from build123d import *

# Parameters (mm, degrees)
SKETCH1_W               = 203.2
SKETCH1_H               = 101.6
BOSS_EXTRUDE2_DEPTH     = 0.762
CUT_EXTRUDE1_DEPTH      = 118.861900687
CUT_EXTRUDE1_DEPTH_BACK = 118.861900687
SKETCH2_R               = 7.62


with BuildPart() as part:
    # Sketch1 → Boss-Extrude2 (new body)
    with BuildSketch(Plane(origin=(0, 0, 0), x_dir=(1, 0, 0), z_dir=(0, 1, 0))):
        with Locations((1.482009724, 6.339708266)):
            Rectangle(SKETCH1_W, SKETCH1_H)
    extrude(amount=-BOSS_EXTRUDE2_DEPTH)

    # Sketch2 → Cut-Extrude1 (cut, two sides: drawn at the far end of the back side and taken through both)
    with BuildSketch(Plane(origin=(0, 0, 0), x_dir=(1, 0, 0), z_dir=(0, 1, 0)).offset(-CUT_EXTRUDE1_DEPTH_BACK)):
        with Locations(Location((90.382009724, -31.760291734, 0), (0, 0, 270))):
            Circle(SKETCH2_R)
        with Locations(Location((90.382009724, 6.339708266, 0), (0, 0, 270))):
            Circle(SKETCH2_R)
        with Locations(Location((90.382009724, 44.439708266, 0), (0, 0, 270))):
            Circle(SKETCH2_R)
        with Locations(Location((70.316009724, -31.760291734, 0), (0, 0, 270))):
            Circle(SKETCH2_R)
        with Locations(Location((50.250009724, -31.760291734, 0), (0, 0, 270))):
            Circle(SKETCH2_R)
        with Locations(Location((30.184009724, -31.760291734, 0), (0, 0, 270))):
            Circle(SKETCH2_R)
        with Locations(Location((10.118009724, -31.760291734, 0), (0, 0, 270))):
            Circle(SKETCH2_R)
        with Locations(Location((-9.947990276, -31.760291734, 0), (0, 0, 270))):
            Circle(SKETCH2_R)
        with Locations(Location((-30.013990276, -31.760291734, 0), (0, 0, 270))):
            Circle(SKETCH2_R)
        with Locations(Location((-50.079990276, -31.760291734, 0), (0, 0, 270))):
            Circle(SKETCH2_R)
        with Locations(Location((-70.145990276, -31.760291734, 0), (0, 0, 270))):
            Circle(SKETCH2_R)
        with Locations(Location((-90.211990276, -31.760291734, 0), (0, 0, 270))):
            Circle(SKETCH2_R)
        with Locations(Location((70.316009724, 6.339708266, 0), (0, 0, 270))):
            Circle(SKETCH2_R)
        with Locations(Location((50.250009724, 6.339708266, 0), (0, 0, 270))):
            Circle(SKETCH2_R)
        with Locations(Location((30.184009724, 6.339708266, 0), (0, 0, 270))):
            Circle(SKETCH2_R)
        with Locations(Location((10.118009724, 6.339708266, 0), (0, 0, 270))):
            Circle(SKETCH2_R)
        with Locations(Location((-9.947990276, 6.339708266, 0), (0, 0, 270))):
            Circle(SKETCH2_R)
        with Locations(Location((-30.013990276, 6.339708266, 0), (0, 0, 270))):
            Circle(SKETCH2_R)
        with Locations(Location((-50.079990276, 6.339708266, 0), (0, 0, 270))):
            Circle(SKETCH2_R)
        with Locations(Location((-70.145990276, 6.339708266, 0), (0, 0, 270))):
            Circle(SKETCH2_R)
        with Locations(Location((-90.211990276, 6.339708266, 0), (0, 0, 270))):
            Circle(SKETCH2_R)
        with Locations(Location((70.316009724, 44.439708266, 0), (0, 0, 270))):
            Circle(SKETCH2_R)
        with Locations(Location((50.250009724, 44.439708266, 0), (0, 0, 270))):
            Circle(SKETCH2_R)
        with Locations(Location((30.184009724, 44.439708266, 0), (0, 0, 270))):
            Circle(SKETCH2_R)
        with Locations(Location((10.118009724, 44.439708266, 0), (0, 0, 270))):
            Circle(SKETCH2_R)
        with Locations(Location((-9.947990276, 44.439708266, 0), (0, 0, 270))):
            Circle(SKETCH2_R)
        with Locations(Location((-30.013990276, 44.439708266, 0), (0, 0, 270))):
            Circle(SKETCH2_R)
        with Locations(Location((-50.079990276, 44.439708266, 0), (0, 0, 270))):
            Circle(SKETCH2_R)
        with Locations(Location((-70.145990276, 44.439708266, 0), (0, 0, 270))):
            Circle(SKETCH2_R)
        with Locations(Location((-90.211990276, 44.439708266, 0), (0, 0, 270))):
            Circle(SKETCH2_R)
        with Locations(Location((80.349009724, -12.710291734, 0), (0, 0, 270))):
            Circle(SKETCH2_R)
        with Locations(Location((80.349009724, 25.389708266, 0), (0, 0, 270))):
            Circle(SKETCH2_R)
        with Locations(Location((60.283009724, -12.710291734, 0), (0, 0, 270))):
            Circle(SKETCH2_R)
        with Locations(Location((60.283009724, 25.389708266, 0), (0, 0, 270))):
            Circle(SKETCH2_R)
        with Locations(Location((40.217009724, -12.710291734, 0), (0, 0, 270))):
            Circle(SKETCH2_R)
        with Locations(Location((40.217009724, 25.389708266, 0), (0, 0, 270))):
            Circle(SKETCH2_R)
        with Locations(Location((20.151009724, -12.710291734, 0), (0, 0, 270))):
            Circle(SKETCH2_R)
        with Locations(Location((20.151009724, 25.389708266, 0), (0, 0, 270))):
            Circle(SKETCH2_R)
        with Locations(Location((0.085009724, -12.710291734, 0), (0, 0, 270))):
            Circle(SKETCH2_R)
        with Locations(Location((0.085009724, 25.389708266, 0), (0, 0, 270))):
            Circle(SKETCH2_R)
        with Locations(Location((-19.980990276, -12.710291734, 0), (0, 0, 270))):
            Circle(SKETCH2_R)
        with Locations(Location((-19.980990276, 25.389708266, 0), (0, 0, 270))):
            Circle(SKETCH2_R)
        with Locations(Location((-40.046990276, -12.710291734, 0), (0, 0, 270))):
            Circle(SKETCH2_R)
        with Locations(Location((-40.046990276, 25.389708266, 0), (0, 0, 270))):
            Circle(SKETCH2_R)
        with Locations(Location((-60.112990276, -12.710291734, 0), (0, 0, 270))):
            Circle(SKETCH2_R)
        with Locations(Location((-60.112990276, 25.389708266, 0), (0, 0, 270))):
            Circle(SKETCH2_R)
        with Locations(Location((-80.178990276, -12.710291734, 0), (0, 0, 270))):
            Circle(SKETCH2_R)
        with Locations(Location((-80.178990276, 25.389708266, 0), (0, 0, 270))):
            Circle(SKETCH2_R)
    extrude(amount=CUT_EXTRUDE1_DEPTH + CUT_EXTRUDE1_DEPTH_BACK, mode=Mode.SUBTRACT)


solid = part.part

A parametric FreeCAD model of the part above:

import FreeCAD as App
import Part
import Sketcher
Q = App.Units.Quantity


def add_polygon(sketch, points):
    """Adds a closed chain of lines whose ends are joined by coincident constraints."""
    first, n = sketch.GeometryCount, len(points)
    for a, b in zip(points, points[1:] + points[:1]):
        sketch.addGeometry(Part.LineSegment(App.Vector(*a, 0), App.Vector(*b, 0)), False)
    for i in range(n):
        sketch.addConstraint(Sketcher.Constraint("Coincident", first + i, 2, first + (i + 1) % n, 1))

doc = App.newDocument("Part")
body = doc.addObject("PartDesign::Body", "Body")

# Sketch on XZ plane
sketch1 = body.newObject("Sketcher::SketchObject", "Sketch")
sketch1.AttachmentSupport = (doc.getObject("XZ_Plane"), [""])
sketch1.MapMode = "FlatFace"
add_polygon(sketch1, [(-100, -57), (-100, 44), (103, 44), (103, -57)])  # lines 0-3
sketch1.addConstraint(Sketcher.Constraint("Vertical", 0))
sketch1.addConstraint(Sketcher.Constraint("Horizontal", 1))
sketch1.addConstraint(Sketcher.Constraint("Vertical", 2))
sketch1.addConstraint(Sketcher.Constraint("Horizontal", 3))
sketch1.addConstraint(Sketcher.Constraint("DistanceX", 1, 1, 1, 2, Q("8 in")))
sketch1.addConstraint(Sketcher.Constraint("DistanceY", 0, 1, 0, 2, Q("4 in")))
sketch1.addConstraint(Sketcher.Constraint("DistanceX", 0, 2, -1, 1, 100.11799))
sketch1.addConstraint(Sketcher.Constraint("DistanceY", -1, 1, 0, 2, 44.460292))
pad1 = body.newObject("PartDesign::Pad", "Pad")
pad1.Profile = sketch1
pad1.Length = Q("0.03 in")

# Sketch on XZ plane
sketch2 = body.newObject("Sketcher::SketchObject", "Sketch001")
sketch2.AttachmentSupport = (doc.getObject("XZ_Plane"), [""])
sketch2.MapMode = "FlatFace"
sketch2.addGeometry(Part.Circle(App.Vector(90, 32, 0), App.Vector(0, 0, 1), 8), False)
sketch2.addGeometry(Part.Circle(App.Vector(90, -6, 0), App.Vector(0, 0, 1), 8), False)
sketch2.addGeometry(Part.Circle(App.Vector(90, -44, 0), App.Vector(0, 0, 1), 8), False)
sketch2.addGeometry(Part.Circle(App.Vector(70, 32, 0), App.Vector(0, 0, 1), 8), False)
sketch2.addGeometry(Part.Circle(App.Vector(50, 32, 0), App.Vector(0, 0, 1), 8), False)
sketch2.addGeometry(Part.Circle(App.Vector(30, 32, 0), App.Vector(0, 0, 1), 8), False)
sketch2.addGeometry(Part.Circle(App.Vector(10, 32, 0), App.Vector(0, 0, 1), 8), False)
sketch2.addGeometry(Part.Circle(App.Vector(-10, 32, 0), App.Vector(0, 0, 1), 8), False)
sketch2.addGeometry(Part.Circle(App.Vector(-30, 32, 0), App.Vector(0, 0, 1), 8), False)
sketch2.addGeometry(Part.Circle(App.Vector(-50, 32, 0), App.Vector(0, 0, 1), 8), False)
sketch2.addGeometry(Part.Circle(App.Vector(-70, 32, 0), App.Vector(0, 0, 1), 8), False)
sketch2.addGeometry(Part.Circle(App.Vector(-90, 32, 0), App.Vector(0, 0, 1), 8), False)
sketch2.addGeometry(Part.Circle(App.Vector(70, -6, 0), App.Vector(0, 0, 1), 8), False)
sketch2.addGeometry(Part.Circle(App.Vector(50, -6, 0), App.Vector(0, 0, 1), 8), False)
sketch2.addGeometry(Part.Circle(App.Vector(30, -6, 0), App.Vector(0, 0, 1), 8), False)
sketch2.addGeometry(Part.Circle(App.Vector(10, -6, 0), App.Vector(0, 0, 1), 8), False)
sketch2.addGeometry(Part.Circle(App.Vector(-10, -6, 0), App.Vector(0, 0, 1), 8), False)
sketch2.addGeometry(Part.Circle(App.Vector(-30, -6, 0), App.Vector(0, 0, 1), 8), False)
sketch2.addGeometry(Part.Circle(App.Vector(-50, -6, 0), App.Vector(0, 0, 1), 8), False)
sketch2.addGeometry(Part.Circle(App.Vector(-70, -6, 0), App.Vector(0, 0, 1), 8), False)
sketch2.addGeometry(Part.Circle(App.Vector(-90, -6, 0), App.Vector(0, 0, 1), 8), False)
sketch2.addGeometry(Part.Circle(App.Vector(70, -44, 0), App.Vector(0, 0, 1), 8), False)
sketch2.addGeometry(Part.Circle(App.Vector(50, -44, 0), App.Vector(0, 0, 1), 8), False)
sketch2.addGeometry(Part.Circle(App.Vector(30, -44, 0), App.Vector(0, 0, 1), 8), False)
sketch2.addGeometry(Part.Circle(App.Vector(10, -44, 0), App.Vector(0, 0, 1), 8), False)
sketch2.addGeometry(Part.Circle(App.Vector(-10, -44, 0), App.Vector(0, 0, 1), 8), False)
sketch2.addGeometry(Part.Circle(App.Vector(-30, -44, 0), App.Vector(0, 0, 1), 8), False)
sketch2.addGeometry(Part.Circle(App.Vector(-50, -44, 0), App.Vector(0, 0, 1), 8), False)
sketch2.addGeometry(Part.Circle(App.Vector(-70, -44, 0), App.Vector(0, 0, 1), 8), False)
sketch2.addGeometry(Part.Circle(App.Vector(-90, -44, 0), App.Vector(0, 0, 1), 8), False)
sketch2.addGeometry(Part.Circle(App.Vector(80, 13, 0), App.Vector(0, 0, 1), 8), False)
sketch2.addGeometry(Part.Circle(App.Vector(80, -25, 0), App.Vector(0, 0, 1), 8), False)
sketch2.addGeometry(Part.Circle(App.Vector(60, 13, 0), App.Vector(0, 0, 1), 8), False)
sketch2.addGeometry(Part.Circle(App.Vector(60, -25, 0), App.Vector(0, 0, 1), 8), False)
sketch2.addGeometry(Part.Circle(App.Vector(40, 13, 0), App.Vector(0, 0, 1), 8), False)
sketch2.addGeometry(Part.Circle(App.Vector(40, -25, 0), App.Vector(0, 0, 1), 8), False)
sketch2.addGeometry(Part.Circle(App.Vector(20, 13, 0), App.Vector(0, 0, 1), 8), False)
sketch2.addGeometry(Part.Circle(App.Vector(20, -25, 0), App.Vector(0, 0, 1), 8), False)
sketch2.addGeometry(Part.Circle(App.Vector(0, 13, 0), App.Vector(0, 0, 1), 8), False)
sketch2.addGeometry(Part.Circle(App.Vector(0, -25, 0), App.Vector(0, 0, 1), 8), False)
sketch2.addGeometry(Part.Circle(App.Vector(-20, 13, 0), App.Vector(0, 0, 1), 8), False)
sketch2.addGeometry(Part.Circle(App.Vector(-20, -25, 0), App.Vector(0, 0, 1), 8), False)
sketch2.addGeometry(Part.Circle(App.Vector(-40, 13, 0), App.Vector(0, 0, 1), 8), False)
sketch2.addGeometry(Part.Circle(App.Vector(-40, -25, 0), App.Vector(0, 0, 1), 8), False)
sketch2.addGeometry(Part.Circle(App.Vector(-60, 13, 0), App.Vector(0, 0, 1), 8), False)
sketch2.addGeometry(Part.Circle(App.Vector(-60, -25, 0), App.Vector(0, 0, 1), 8), False)
sketch2.addGeometry(Part.Circle(App.Vector(-80, 13, 0), App.Vector(0, 0, 1), 8), False)
sketch2.addGeometry(Part.Circle(App.Vector(-80, -25, 0), App.Vector(0, 0, 1), 8), False)
sketch2.addConstraint(Sketcher.Constraint("Equal", 0, 1))
sketch2.addConstraint(Sketcher.Constraint("Equal", 1, 2))
sketch2.addConstraint(Sketcher.Constraint("Equal", 2, 3))
sketch2.addConstraint(Sketcher.Constraint("Equal", 3, 4))
sketch2.addConstraint(Sketcher.Constraint("Equal", 4, 5))
sketch2.addConstraint(Sketcher.Constraint("Equal", 5, 6))
sketch2.addConstraint(Sketcher.Constraint("Equal", 6, 7))
sketch2.addConstraint(Sketcher.Constraint("Equal", 7, 8))
sketch2.addConstraint(Sketcher.Constraint("Equal", 8, 9))
sketch2.addConstraint(Sketcher.Constraint("Equal", 9, 10))
sketch2.addConstraint(Sketcher.Constraint("Equal", 10, 11))
sketch2.addConstraint(Sketcher.Constraint("Equal", 11, 12))
sketch2.addConstraint(Sketcher.Constraint("Equal", 12, 13))
sketch2.addConstraint(Sketcher.Constraint("Equal", 13, 14))
sketch2.addConstraint(Sketcher.Constraint("Equal", 14, 15))
sketch2.addConstraint(Sketcher.Constraint("Equal", 15, 16))
sketch2.addConstraint(Sketcher.Constraint("Equal", 16, 17))
sketch2.addConstraint(Sketcher.Constraint("Equal", 17, 18))
sketch2.addConstraint(Sketcher.Constraint("Equal", 18, 19))
sketch2.addConstraint(Sketcher.Constraint("Equal", 19, 20))
sketch2.addConstraint(Sketcher.Constraint("Equal", 20, 21))
sketch2.addConstraint(Sketcher.Constraint("Equal", 21, 22))
sketch2.addConstraint(Sketcher.Constraint("Equal", 22, 23))
sketch2.addConstraint(Sketcher.Constraint("Equal", 23, 24))
sketch2.addConstraint(Sketcher.Constraint("Equal", 24, 25))
sketch2.addConstraint(Sketcher.Constraint("Equal", 25, 26))
sketch2.addConstraint(Sketcher.Constraint("Equal", 26, 27))
sketch2.addConstraint(Sketcher.Constraint("Equal", 27, 28))
sketch2.addConstraint(Sketcher.Constraint("Equal", 28, 29))
sketch2.addConstraint(Sketcher.Constraint("Equal", 29, 30))
sketch2.addConstraint(Sketcher.Constraint("Equal", 30, 31))
sketch2.addConstraint(Sketcher.Constraint("Equal", 31, 32))
sketch2.addConstraint(Sketcher.Constraint("Equal", 32, 33))
sketch2.addConstraint(Sketcher.Constraint("Equal", 33, 34))
sketch2.addConstraint(Sketcher.Constraint("Equal", 34, 35))
sketch2.addConstraint(Sketcher.Constraint("Equal", 35, 36))
sketch2.addConstraint(Sketcher.Constraint("Equal", 36, 37))
sketch2.addConstraint(Sketcher.Constraint("Equal", 37, 38))
sketch2.addConstraint(Sketcher.Constraint("Equal", 38, 39))
sketch2.addConstraint(Sketcher.Constraint("Equal", 39, 40))
sketch2.addConstraint(Sketcher.Constraint("Equal", 40, 41))
sketch2.addConstraint(Sketcher.Constraint("Equal", 41, 42))
sketch2.addConstraint(Sketcher.Constraint("Equal", 42, 43))
sketch2.addConstraint(Sketcher.Constraint("Equal", 43, 44))
sketch2.addConstraint(Sketcher.Constraint("Equal", 44, 45))
sketch2.addConstraint(Sketcher.Constraint("Equal", 45, 46))
sketch2.addConstraint(Sketcher.Constraint("Equal", 46, 47))
sketch2.addConstraint(Sketcher.Constraint("Horizontal", 0, 3, 3, 3))
sketch2.addConstraint(Sketcher.Constraint("Horizontal", 3, 3, 4, 3))
sketch2.addConstraint(Sketcher.Constraint("Horizontal", 4, 3, 5, 3))
sketch2.addConstraint(Sketcher.Constraint("Horizontal", 5, 3, 6, 3))
sketch2.addConstraint(Sketcher.Constraint("Horizontal", 6, 3, 7, 3))
sketch2.addConstraint(Sketcher.Constraint("Horizontal", 7, 3, 8, 3))
sketch2.addConstraint(Sketcher.Constraint("Horizontal", 8, 3, 9, 3))
sketch2.addConstraint(Sketcher.Constraint("Horizontal", 9, 3, 10, 3))
sketch2.addConstraint(Sketcher.Constraint("Horizontal", 10, 3, 11, 3))
sketch2.addConstraint(Sketcher.Constraint("Horizontal", 1, 3, 12, 3))
sketch2.addConstraint(Sketcher.Constraint("Horizontal", 12, 3, 13, 3))
sketch2.addConstraint(Sketcher.Constraint("Horizontal", 13, 3, 14, 3))
sketch2.addConstraint(Sketcher.Constraint("Horizontal", 14, 3, 15, 3))
sketch2.addConstraint(Sketcher.Constraint("Horizontal", 15, 3, 16, 3))
sketch2.addConstraint(Sketcher.Constraint("Horizontal", 16, 3, 17, 3))
sketch2.addConstraint(Sketcher.Constraint("Horizontal", 17, 3, 18, 3))
sketch2.addConstraint(Sketcher.Constraint("Horizontal", 18, 3, 19, 3))
sketch2.addConstraint(Sketcher.Constraint("Horizontal", 19, 3, 20, 3))
sketch2.addConstraint(Sketcher.Constraint("Horizontal", 2, 3, 21, 3))
sketch2.addConstraint(Sketcher.Constraint("Horizontal", 21, 3, 22, 3))
sketch2.addConstraint(Sketcher.Constraint("Horizontal", 22, 3, 23, 3))
sketch2.addConstraint(Sketcher.Constraint("Horizontal", 23, 3, 24, 3))
sketch2.addConstraint(Sketcher.Constraint("Horizontal", 24, 3, 25, 3))
sketch2.addConstraint(Sketcher.Constraint("Horizontal", 25, 3, 26, 3))
sketch2.addConstraint(Sketcher.Constraint("Horizontal", 26, 3, 27, 3))
sketch2.addConstraint(Sketcher.Constraint("Horizontal", 27, 3, 28, 3))
sketch2.addConstraint(Sketcher.Constraint("Horizontal", 28, 3, 29, 3))
sketch2.addConstraint(Sketcher.Constraint("Horizontal", 30, 3, 32, 3))
sketch2.addConstraint(Sketcher.Constraint("Horizontal", 31, 3, 33, 3))
sketch2.addConstraint(Sketcher.Constraint("Horizontal", 32, 3, 34, 3))
sketch2.addConstraint(Sketcher.Constraint("Horizontal", 33, 3, 35, 3))
sketch2.addConstraint(Sketcher.Constraint("Horizontal", 34, 3, 36, 3))
sketch2.addConstraint(Sketcher.Constraint("Horizontal", 35, 3, 37, 3))
sketch2.addConstraint(Sketcher.Constraint("Horizontal", 36, 3, 38, 3))
sketch2.addConstraint(Sketcher.Constraint("Horizontal", 37, 3, 39, 3))
sketch2.addConstraint(Sketcher.Constraint("Horizontal", 38, 3, 40, 3))
sketch2.addConstraint(Sketcher.Constraint("Horizontal", 39, 3, 41, 3))
sketch2.addConstraint(Sketcher.Constraint("Horizontal", 40, 3, 42, 3))
sketch2.addConstraint(Sketcher.Constraint("Horizontal", 41, 3, 43, 3))
sketch2.addConstraint(Sketcher.Constraint("Horizontal", 42, 3, 44, 3))
sketch2.addConstraint(Sketcher.Constraint("Horizontal", 43, 3, 45, 3))
sketch2.addConstraint(Sketcher.Constraint("Horizontal", 44, 3, 46, 3))
sketch2.addConstraint(Sketcher.Constraint("Horizontal", 45, 3, 47, 3))
sketch2.addConstraint(Sketcher.Constraint("Vertical", 0, 3, 1, 3))
sketch2.addConstraint(Sketcher.Constraint("Vertical", 1, 3, 2, 3))
sketch2.addConstraint(Sketcher.Constraint("Vertical", 3, 3, 12, 3))
sketch2.addConstraint(Sketcher.Constraint("Vertical", 4, 3, 13, 3))
sketch2.addConstraint(Sketcher.Constraint("Vertical", 5, 3, 14, 3))
sketch2.addConstraint(Sketcher.Constraint("Vertical", 6, 3, 15, 3))
sketch2.addConstraint(Sketcher.Constraint("Vertical", 7, 3, 16, 3))
sketch2.addConstraint(Sketcher.Constraint("Vertical", 8, 3, 17, 3))
sketch2.addConstraint(Sketcher.Constraint("Vertical", 9, 3, 18, 3))
sketch2.addConstraint(Sketcher.Constraint("Vertical", 10, 3, 19, 3))
sketch2.addConstraint(Sketcher.Constraint("Vertical", 11, 3, 20, 3))
sketch2.addConstraint(Sketcher.Constraint("Vertical", 12, 3, 21, 3))
sketch2.addConstraint(Sketcher.Constraint("Vertical", 13, 3, 22, 3))
sketch2.addConstraint(Sketcher.Constraint("Vertical", 14, 3, 23, 3))
sketch2.addConstraint(Sketcher.Constraint("Vertical", 15, 3, 24, 3))
sketch2.addConstraint(Sketcher.Constraint("Vertical", 16, 3, 25, 3))
sketch2.addConstraint(Sketcher.Constraint("Vertical", 17, 3, 26, 3))
sketch2.addConstraint(Sketcher.Constraint("Vertical", 18, 3, 27, 3))
sketch2.addConstraint(Sketcher.Constraint("Vertical", 19, 3, 28, 3))
sketch2.addConstraint(Sketcher.Constraint("Vertical", 20, 3, 29, 3))
sketch2.addConstraint(Sketcher.Constraint("Vertical", 30, 3, 31, 3))
sketch2.addConstraint(Sketcher.Constraint("Vertical", 32, 3, 33, 3))
sketch2.addConstraint(Sketcher.Constraint("Vertical", 34, 3, 35, 3))
sketch2.addConstraint(Sketcher.Constraint("Vertical", 36, 3, 37, 3))
sketch2.addConstraint(Sketcher.Constraint("Vertical", 38, 3, 39, 3))
sketch2.addConstraint(Sketcher.Constraint("Vertical", 40, 3, 41, 3))
sketch2.addConstraint(Sketcher.Constraint("Vertical", 42, 3, 43, 3))
sketch2.addConstraint(Sketcher.Constraint("Vertical", 44, 3, 45, 3))
sketch2.addConstraint(Sketcher.Constraint("Vertical", 46, 3, 47, 3))
sketch2.addConstraint(Sketcher.Constraint("Diameter", 0, Q("0.6 in")))
sketch2.addConstraint(Sketcher.Constraint("DistanceY", 2, 3, 0, 3, Q("3 in")))
sketch2.addConstraint(Sketcher.Constraint("DistanceY", 1, 3, 0, 3, Q("1.5 in")))
sketch2.addConstraint(Sketcher.Constraint("DistanceX", 3, 3, 0, 3, Q("0.79 in")))
sketch2.addConstraint(Sketcher.Constraint("DistanceX", 4, 3, 3, 3, Q("0.79 in")))
sketch2.addConstraint(Sketcher.Constraint("DistanceX", 5, 3, 4, 3, Q("0.79 in")))
sketch2.addConstraint(Sketcher.Constraint("DistanceX", 6, 3, 5, 3, Q("0.79 in")))
sketch2.addConstraint(Sketcher.Constraint("DistanceX", 7, 3, 6, 3, Q("0.79 in")))
sketch2.addConstraint(Sketcher.Constraint("DistanceX", 8, 3, 7, 3, Q("0.79 in")))
sketch2.addConstraint(Sketcher.Constraint("DistanceX", 9, 3, 8, 3, Q("0.79 in")))
sketch2.addConstraint(Sketcher.Constraint("DistanceX", 10, 3, 9, 3, Q("0.79 in")))
sketch2.addConstraint(Sketcher.Constraint("DistanceX", 11, 3, 10, 3, Q("0.79 in")))
sketch2.addConstraint(Sketcher.Constraint("DistanceY", 30, 3, 0, 3, Q("0.75 in")))
sketch2.addConstraint(Sketcher.Constraint("DistanceY", 2, 3, 31, 3, Q("0.75 in")))
sketch2.addConstraint(Sketcher.Constraint("DistanceX", 32, 3, 30, 3, Q("0.79 in")))
sketch2.addConstraint(Sketcher.Constraint("DistanceX", 34, 3, 32, 3, Q("0.79 in")))
sketch2.addConstraint(Sketcher.Constraint("DistanceX", 36, 3, 34, 3, Q("0.79 in")))
sketch2.addConstraint(Sketcher.Constraint("DistanceX", 38, 3, 36, 3, Q("0.79 in")))
sketch2.addConstraint(Sketcher.Constraint("DistanceX", 40, 3, 38, 3, Q("0.79 in")))
sketch2.addConstraint(Sketcher.Constraint("DistanceX", 42, 3, 40, 3, Q("0.79 in")))
sketch2.addConstraint(Sketcher.Constraint("DistanceX", 44, 3, 42, 3, Q("0.79 in")))
sketch2.addConstraint(Sketcher.Constraint("DistanceX", 46, 3, 44, 3, Q("0.79 in")))
sketch2.addConstraint(Sketcher.Constraint("DistanceX", 30, 3, 0, 3, Q("0.395 in")))
sketch2.addConstraint(Sketcher.Constraint("DistanceX", -1, 1, 0, 3, 90.38201))
sketch2.addConstraint(Sketcher.Constraint("DistanceY", -1, 1, 0, 3, 31.760292))
pocket1 = body.newObject("PartDesign::Pocket", "Pocket")
pocket1.Profile = sketch2
pocket1.Type = "ThroughAll"
pocket1.Midplane = True

doc.recompute()
